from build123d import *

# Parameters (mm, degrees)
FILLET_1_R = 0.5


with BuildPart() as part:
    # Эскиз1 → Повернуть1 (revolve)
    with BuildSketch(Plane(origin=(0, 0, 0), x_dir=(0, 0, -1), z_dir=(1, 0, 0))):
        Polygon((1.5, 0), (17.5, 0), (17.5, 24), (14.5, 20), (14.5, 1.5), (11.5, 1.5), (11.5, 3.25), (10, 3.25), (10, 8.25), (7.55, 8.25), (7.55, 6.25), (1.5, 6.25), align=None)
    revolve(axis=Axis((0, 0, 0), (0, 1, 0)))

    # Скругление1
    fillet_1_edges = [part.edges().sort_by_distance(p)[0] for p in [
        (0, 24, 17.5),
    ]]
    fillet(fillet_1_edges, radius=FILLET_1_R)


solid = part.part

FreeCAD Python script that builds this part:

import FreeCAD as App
import Part
import Sketcher


def edges_at(feature, points):
    """Names of the edges that pass closest to the given points."""
    edges = feature.Shape.Edges
    near = lambda p: min(range(len(edges)), key=lambda i: edges[i].distToShape(Part.Vertex(*p))[0])
    return sorted({f"Edge{near(p) + 1}" for p in points})

doc = App.newDocument("Part")
body = doc.addObject("PartDesign::Body", "Body")

# Sketch on YZ plane
sketch1 = body.newObject("Sketcher::SketchObject", "Sketch")
sketch1.AttachmentSupport = (doc.getObject("YZ_Plane"), [""])
sketch1.MapMode = "FlatFace"
sketch1.addGeometry([
    Part.LineSegment(App.Vector(0, -1.5, 0), App.Vector(0, -17.5, 0)),  # 0
    Part.LineSegment(App.Vector(0, -17.5, 0), App.Vector(24, -17.5, 0)),  # 1
    Part.LineSegment(App.Vector(24, -17.5, 0), App.Vector(20, -14.5, 0)),  # 2
    Part.LineSegment(App.Vector(20, -14.5, 0), App.Vector(1.5, -14.5, 0)),  # 3
    Part.LineSegment(App.Vector(1.5, -14.5, 0), App.Vector(1.5, -11.5, 0)),  # 4
    Part.LineSegment(App.Vector(1.5, -11.5, 0), App.Vector(3.2, -11.5, 0)),  # 5
    Part.LineSegment(App.Vector(3.2, -11.5, 0), App.Vector(3.2, -10, 0)),  # 6
    Part.LineSegment(App.Vector(3.2, -10, 0), App.Vector(8.2, -10, 0)),  # 7
    Part.LineSegment(App.Vector(8.2, -10, 0), App.Vector(8.2, -7.5, 0)),  # 8
    Part.LineSegment(App.Vector(8.2, -7.5, 0), App.Vector(6.2, -7.5, 0)),  # 9
    Part.LineSegment(App.Vector(6.2, -7.5, 0), App.Vector(6.2, -1.5, 0)),  # 10
    Part.LineSegment(App.Vector(6.2, -1.5, 0), App.Vector(0, -1.5, 0)),  # 11
], False)
sketch1.addConstraint([
    Sketcher.Constraint("Coincident", 0, 2, 1, 1),
    Sketcher.Constraint("Coincident", 1, 2, 2, 1),
    Sketcher.Constraint("Coincident", 2, 2, 3, 1),
    Sketcher.Constraint("Coincident", 3, 2, 4, 1),
    Sketcher.Constraint("Coincident", 4, 2, 5, 1),
    Sketcher.Constraint("Coincident", 5, 2, 6, 1),
    Sketcher.Constraint("Coincident", 6, 2, 7, 1),
    Sketcher.Constraint("Coincident", 7, 2, 8, 1),
    Sketcher.Constraint("Coincident", 8, 2, 9, 1),
    Sketcher.Constraint("Coincident", 9, 2, 10, 1),
    Sketcher.Constraint("Coincident", 10, 2, 11, 1),
    Sketcher.Constraint("Coincident", 11, 2, 0, 1),
    Sketcher.Constraint("Vertical", 0),
    Sketcher.Constraint("Horizontal", 1),
    Sketcher.Constraint("Horizontal", 3),
    Sketcher.Constraint("Vertical", 4),
    Sketcher.Constraint("Horizontal", 5),
    Sketcher.Constraint("Vertical", 6),
    Sketcher.Constraint("Horizontal", 7),
    Sketcher.Constraint("Vertical", 8),
    Sketcher.Constraint("Horizontal", 9),
    Sketcher.Constraint("Vertical", 10),
    Sketcher.Constraint("Horizontal", 11),
    Sketcher.Constraint("PointOnObject", 0, 2, -2),
    Sketcher.Constraint("DistanceX", 1, 1, 1, 2, 24.0),
    Sketcher.Constraint("DistanceX", 7, 1, 7, 2, 5.0),
    Sketcher.Constraint("DistanceX", 9, 2, 9, 1, 2.0),
    Sketcher.Constraint("DistanceY", 0, 2, 0, 1, 16.0),
    Sketcher.Constraint("DistanceY", 4, 1, 4, 2, 3.0),
    Sketcher.Constraint("Distance", 2, 5.0),
    Sketcher.Constraint("DistanceX", 3, 2, 3, 1, 18.5),
    Sketcher.Constraint("DistanceY", 6, 1, 6, 2, 1.5),
    Sketcher.Constraint("DistanceX", -1, 1, 2, 2, 20.0),
    Sketcher.Constraint("DistanceY", 6, 2, -1, 1, 10.0),
    Sketcher.Constraint("DistanceX", 5, 1, 5, 2, 1.75),
    Sketcher.Constraint("DistanceY", 8, 1, 8, 2, 2.45),
])
revolution = body.newObject("PartDesign::Revolution", "Revolution")
revolution.Profile = sketch1
revolution.ReferenceAxis = (sketch1, ["H_Axis"])
revolution.Angle = 360
doc.recompute()

fillet = body.newObject("PartDesign::Fillet", "Fillet")
fillet.Base = (revolution, edges_at(revolution, [(0, 24, 17.5)]))
fillet.Radius = 0.5

doc.recompute()
